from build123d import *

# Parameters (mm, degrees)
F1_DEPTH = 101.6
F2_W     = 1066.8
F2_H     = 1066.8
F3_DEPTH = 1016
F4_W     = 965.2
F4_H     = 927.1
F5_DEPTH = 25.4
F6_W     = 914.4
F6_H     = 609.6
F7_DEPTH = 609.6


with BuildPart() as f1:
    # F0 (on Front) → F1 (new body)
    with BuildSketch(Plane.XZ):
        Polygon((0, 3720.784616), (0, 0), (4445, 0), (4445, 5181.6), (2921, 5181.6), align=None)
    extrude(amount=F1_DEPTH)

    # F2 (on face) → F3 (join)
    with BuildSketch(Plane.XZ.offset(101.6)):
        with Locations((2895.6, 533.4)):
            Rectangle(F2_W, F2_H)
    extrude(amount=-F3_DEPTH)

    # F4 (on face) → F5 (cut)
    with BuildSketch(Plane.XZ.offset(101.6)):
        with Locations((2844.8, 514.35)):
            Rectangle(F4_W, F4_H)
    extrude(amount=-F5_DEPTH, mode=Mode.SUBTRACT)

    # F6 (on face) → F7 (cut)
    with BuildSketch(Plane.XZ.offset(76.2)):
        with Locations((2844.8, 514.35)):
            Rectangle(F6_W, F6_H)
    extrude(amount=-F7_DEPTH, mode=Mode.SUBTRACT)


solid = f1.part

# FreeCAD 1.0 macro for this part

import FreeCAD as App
import Part
import Sketcher
Q = App.Units.Quantity


def add_polygon(sketch, points):
    """Adds a closed chain of lines whose ends are joined by coincident constraints."""
    first, n = sketch.GeometryCount, len(points)
    for a, b in zip(points, points[1:] + points[:1]):
        sketch.addGeometry(Part.LineSegment(App.Vector(*a, 0), App.Vector(*b, 0)), False)
    for i in range(n):
        sketch.addConstraint(Sketcher.Constraint("Coincident", first + i, 2, first + (i + 1) % n, 1))

doc = App.newDocument("Part")
params = doc.addObject("Spreadsheet::Sheet", "Params")
for row, (alias, value) in enumerate([
    ("sketch1_width", "175 in"),
    ("sketch1_width2", "60 in"),
    ("sketch1_height", "204 in"),
    ("pad1_length", "4 in"),
    ("sketch2_width", "42 in"),
    ("pad2_length", "40 in"),
    ("sketch3_width", "38 in"),
    ("sketch3_height", "36.5 in"),
    ("pocket1_length", "1 in"),
    ("sketch4_width", "36 in"),
    ("sketch4_height", "24 in"),
    ("pocket2_length", "24 in"),
], start=1):
    params.set(f"A{row}", alias)
    params.set(f"B{row}", "=" + value)
    params.setAlias(f"B{row}", alias)

body = doc.addObject("PartDesign::Body", "Body")

# Sketch on XZ plane
sketch1 = doc.addObject("Sketcher::SketchObject", "Sketch")
body.addObject(sketch1)
sketch1.AttachmentSupport = (doc.XZ_Plane, [""])
sketch1.MapMode = "FlatFace"
add_polygon(sketch1, [(0, 3720.784616), (0, 0), (4445, 0), (4445, 5181.6), (2921, 5181.6)])  # lines 0-4
sketch1.addConstraint(Sketcher.Constraint("Vertical", 0))
sketch1.addConstraint(Sketcher.Constraint("Horizontal", 1))
sketch1.addConstraint(Sketcher.Constraint("Vertical", 2))
sketch1.addConstraint(Sketcher.Constraint("Horizontal", 3))
sketch1.addConstraint(Sketcher.Constraint("Coincident", 0, 2, -1, 1))
sketch1.addConstraint(Sketcher.Constraint("DistanceX", 1, 1, 1, 2, Q("175 in")))
sketch1.addConstraint(Sketcher.Constraint("DistanceX", 3, 2, 3, 1, Q("60 in")))
sketch1.addConstraint(Sketcher.Constraint("DistanceY", 2, 1, 2, 2, Q("204 in")))
sketch1.addConstraint(Sketcher.Constraint("Angle", 4, Q("-153.43 deg")))
sketch1.setExpression("Constraints[10]", "Params.sketch1_width")
sketch1.setExpression("Constraints[11]", "Params.sketch1_width2")
sketch1.setExpression("Constraints[12]", "Params.sketch1_height")
pad1 = doc.addObject("PartDesign::Pad", "Pad")
body.addObject(pad1)
pad1.Profile = sketch1
pad1.setExpression("Length", "Params.pad1_length")

# Sketch on XZ plane
sketch2 = doc.addObject("Sketcher::SketchObject", "Sketch001")
body.addObject(sketch2)
sketch2.AttachmentSupport = (doc.XZ_Plane, [""])
sketch2.MapMode = "FlatFace"
sketch2.AttachmentOffset = App.Placement(App.Vector(0, 0, 4 * 25.4), App.Rotation())
add_polygon(sketch2, [(2362.2, 1066.8), (2362.2, 0), (3429, 0), (3429, 1066.8)])  # lines 0-3
sketch2.addConstraint(Sketcher.Constraint("Vertical", 0))
sketch2.addConstraint(Sketcher.Constraint("Horizontal", 1))
sketch2.addConstraint(Sketcher.Constraint("Vertical", 2))
sketch2.addConstraint(Sketcher.Constraint("Horizontal", 3))
sketch2.addConstraint(Sketcher.Constraint("PointOnObject", 0, 2, -1))
sketch2.addConstraint(Sketcher.Constraint("Equal", 3, 0))
sketch2.addConstraint(Sketcher.Constraint("DistanceX", 1, 1, 1, 2, Q("42 in")))
sketch2.addConstraint(Sketcher.Constraint("DistanceX", -1, 1, 0, 2, Q("93 in")))
sketch2.setExpression("Constraints[10]", "Params.sketch2_width")
pad2 = doc.addObject("PartDesign::Pad", "Pad001")
body.addObject(pad2)
pad2.Profile = sketch2
pad2.setExpression("Length", "Params.pad2_length")
pad2.Reversed = True

# Sketch on XZ plane
sketch3 = doc.addObject("Sketcher::SketchObject", "Sketch002")
body.addObject(sketch3)
sketch3.AttachmentSupport = (doc.XZ_Plane, [""])
sketch3.MapMode = "FlatFace"
sketch3.AttachmentOffset = App.Placement(App.Vector(0, 0, 4 * 25.4), App.Rotation())
add_polygon(sketch3, [(2362.2, 977.9), (2362.2, 50.8), (3327.4, 50.8), (3327.4, 977.9)])  # lines 0-3
sketch3.addConstraint(Sketcher.Constraint("Vertical", 0))
sketch3.addConstraint(Sketcher.Constraint("Horizontal", 1))
sketch3.addConstraint(Sketcher.Constraint("Vertical", 2))
sketch3.addConstraint(Sketcher.Constraint("Horizontal", 3))
sketch3.addConstraint(Sketcher.Constraint("DistanceX", 1, 1, 1, 2, Q("38 in")))
sketch3.addConstraint(Sketcher.Constraint("DistanceY", 0, 2, 0, 1, Q("36.5 in")))
sketch3.addConstraint(Sketcher.Constraint("DistanceX", -1, 1, 0, 2, Q("93 in")))
sketch3.addConstraint(Sketcher.Constraint("DistanceY", -1, 1, 0, 2, Q("2 in")))
sketch3.setExpression("Constraints[8]", "Params.sketch3_width")
sketch3.setExpression("Constraints[9]", "Params.sketch3_height")
pocket1 = doc.addObject("PartDesign::Pocket", "Pocket")
body.addObject(pocket1)
pocket1.Profile = sketch3
pocket1.setExpression("Length", "Params.pocket1_length")

# Sketch on XZ plane
sketch4 = doc.addObject("Sketcher::SketchObject", "Sketch003")
body.addObject(sketch4)
sketch4.AttachmentSupport = (doc.XZ_Plane, [""])
sketch4.MapMode = "FlatFace"
sketch4.AttachmentOffset = App.Placement(App.Vector(0, 0, 3 * 25.4), App.Rotation())
add_polygon(sketch4, [(2387.6, 819.15), (2387.6, 209.55), (3302, 209.55), (3302, 819.15)])  # lines 0-3
sketch4.addConstraint(Sketcher.Constraint("Vertical", 0))
sketch4.addConstraint(Sketcher.Constraint("Horizontal", 1))
sketch4.addConstraint(Sketcher.Constraint("Vertical", 2))
sketch4.addConstraint(Sketcher.Constraint("Horizontal", 3))
sketch4.addConstraint(Sketcher.Constraint("DistanceX", 1, 1, 1, 2, Q("36 in")))
sketch4.addConstraint(Sketcher.Constraint("DistanceY", 0, 2, 0, 1, Q("24 in")))
sketch4.addConstraint(Sketcher.Constraint("DistanceX", -1, 1, 0, 2, Q("94 in")))
sketch4.addConstraint(Sketcher.Constraint("DistanceY", -1, 1, 0, 2, Q("8.25 in")))
sketch4.setExpression("Constraints[8]", "Params.sketch4_width")
sketch4.setExpression("Constraints[9]", "Params.sketch4_height")
pocket2 = doc.addObject("PartDesign::Pocket", "Pocket001")
body.addObject(pocket2)
pocket2.Profile = sketch4
pocket2.setExpression("Length", "Params.pocket2_length")

doc.recompute()
